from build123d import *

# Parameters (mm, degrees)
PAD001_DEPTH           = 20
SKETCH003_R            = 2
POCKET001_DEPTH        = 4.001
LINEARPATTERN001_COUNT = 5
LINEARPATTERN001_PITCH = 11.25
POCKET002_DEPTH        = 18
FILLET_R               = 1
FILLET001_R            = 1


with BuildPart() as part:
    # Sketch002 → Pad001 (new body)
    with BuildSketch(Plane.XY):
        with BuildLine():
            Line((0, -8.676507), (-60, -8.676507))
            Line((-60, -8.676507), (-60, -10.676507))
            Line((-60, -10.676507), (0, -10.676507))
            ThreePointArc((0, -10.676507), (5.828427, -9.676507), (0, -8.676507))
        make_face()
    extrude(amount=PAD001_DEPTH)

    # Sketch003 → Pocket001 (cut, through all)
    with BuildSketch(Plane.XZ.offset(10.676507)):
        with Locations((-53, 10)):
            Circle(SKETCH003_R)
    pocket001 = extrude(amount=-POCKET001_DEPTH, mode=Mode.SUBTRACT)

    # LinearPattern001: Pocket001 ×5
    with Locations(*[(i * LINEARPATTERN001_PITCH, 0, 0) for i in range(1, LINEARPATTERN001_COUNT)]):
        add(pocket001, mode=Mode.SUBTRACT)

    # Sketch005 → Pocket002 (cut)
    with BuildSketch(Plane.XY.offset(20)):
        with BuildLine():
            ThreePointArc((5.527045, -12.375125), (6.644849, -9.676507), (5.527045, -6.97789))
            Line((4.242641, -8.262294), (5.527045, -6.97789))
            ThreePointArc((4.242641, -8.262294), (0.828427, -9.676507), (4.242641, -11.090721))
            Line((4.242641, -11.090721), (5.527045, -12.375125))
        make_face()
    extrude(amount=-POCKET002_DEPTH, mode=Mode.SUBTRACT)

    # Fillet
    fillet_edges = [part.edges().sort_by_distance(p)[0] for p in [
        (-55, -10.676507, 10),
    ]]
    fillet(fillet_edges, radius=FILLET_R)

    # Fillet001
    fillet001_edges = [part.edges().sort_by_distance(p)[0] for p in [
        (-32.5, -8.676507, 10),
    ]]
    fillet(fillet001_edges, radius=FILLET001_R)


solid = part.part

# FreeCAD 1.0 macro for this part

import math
import FreeCAD as App
import Part
import Sketcher


def edges_at(feature, points):
    """Names of the edges that pass closest to the given points."""
    edges = feature.Shape.Edges
    near = lambda p: min(range(len(edges)), key=lambda i: edges[i].distToShape(Part.Vertex(*p))[0])
    return sorted({f"Edge{near(p) + 1}" for p in points})

doc = App.newDocument("Part")
body = doc.addObject("PartDesign::Body", "Body")

sketch1 = body.newObject("Sketcher::SketchObject", "Sketch")
sketch1.AttachmentSupport = (doc.getObject("XY_Plane"), [""])
sketch1.MapMode = "FlatFace"
sketch1.addGeometry([
    Part.LineSegment(App.Vector(0, -8.7, 0), App.Vector(-60, -8.7, 0)),
    Part.LineSegment(App.Vector(-60, -8.7, 0), App.Vector(-60, -10.7, 0)),
    Part.LineSegment(App.Vector(-60, -10.7, 0), App.Vector(0, -10.7, 0)),
    Part.ArcOfCircle(Part.Circle(App.Vector(2.8, -9.7, 0), App.Vector(0, 0, 1), 3), math.radians(-161), math.radians(161)),
], False)
sketch1.addConstraint([
    Sketcher.Constraint("Coincident", 0, 2, 1, 1),
    Sketcher.Constraint("Coincident", 1, 2, 2, 1),
    Sketcher.Constraint("Coincident", 2, 2, 3, 1),
    Sketcher.Constraint("Coincident", 3, 2, 0, 1),
    Sketcher.Constraint("Horizontal", 0),
    Sketcher.Constraint("Vertical", 1),
    Sketcher.Constraint("Horizontal", 2),
    Sketcher.Constraint("PointOnObject", 2, 2, -2),
    Sketcher.Constraint("PointOnObject", 3, 2, -2),
    Sketcher.Constraint("Radius", 3, 3.0),
    Sketcher.Constraint("DistanceX", 0, 2, 0, 1, 60.0),
    Sketcher.Constraint("DistanceY", 1, 2, 1, 1, 2.0),
    Sketcher.Constraint("DistanceY", 3, 3, -1, 1, 9.676507),
])
pad1 = body.newObject("PartDesign::Pad", "Pad")
pad1.Profile = sketch1
pad1.Length = 20

sketch2 = body.newObject("Sketcher::SketchObject", "Sketch001")
sketch2.AttachmentSupport = (doc.getObject("XZ_Plane"), [""])
sketch2.MapMode = "FlatFace"
sketch2.AttachmentOffset = App.Placement(App.Vector(0, 0, 10.676507), App.Rotation())
sketch2.addGeometry(Part.Circle(App.Vector(-53, 10, 0), App.Vector(0, 0, 1), 2), False)
sketch2.addConstraint([
    Sketcher.Constraint("Diameter", 0, 4.0),
    Sketcher.Constraint("DistanceX", 0, 3, -1, 1, 53.0),
    Sketcher.Constraint("DistanceY", -1, 1, 0, 3, 10.0),
])
pocket1 = body.newObject("PartDesign::Pocket", "Pocket")
pocket1.Profile = sketch2
pocket1.Type = "ThroughAll"
doc.recompute()

linearpattern = body.newObject("PartDesign::LinearPattern", "LinearPattern")
linearpattern.Originals = [pocket1]
linearpattern.Direction = (doc.getObject("X_Axis"), [""])
linearpattern.Mode = "offset"
linearpattern.Offset = 11.25
linearpattern.Occurrences = 5
body.Tip = linearpattern

sketch3 = body.newObject("Sketcher::SketchObject", "Sketch002")
sketch3.AttachmentSupport = (doc.getObject("XY_Plane"), [""])
sketch3.MapMode = "FlatFace"
sketch3.AttachmentOffset = App.Placement(App.Vector(0, 0, 20), App.Rotation())
sketch3.addGeometry([
    Part.ArcOfCircle(Part.Circle(App.Vector(2.8, -9.7, 0), App.Vector(0, 0, 1), 3.8), math.radians(-45), math.radians(45)),
    Part.LineSegment(App.Vector(5.5, -7, 0), App.Vector(4.2, -8.3, 0)),
    Part.ArcOfCircle(Part.Circle(App.Vector(2.8, -9.7, 0), App.Vector(0, 0, 1), 2), math.radians(45), math.radians(315)),
    Part.LineSegment(App.Vector(4.2, -11.1, 0), App.Vector(5.5, -12.4, 0)),
], False)
sketch3.addConstraint([
    Sketcher.Constraint("Coincident", 0, 2, 1, 1),
    Sketcher.Constraint("Coincident", 1, 2, 2, 1),
    Sketcher.Constraint("Coincident", 2, 2, 3, 1),
    Sketcher.Constraint("Coincident", 3, 2, 0, 1),
    Sketcher.Constraint("Coincident", 2, 3, 0, 3),
    Sketcher.Constraint("Perpendicular", 1, 3),
    Sketcher.Constraint("Vertical", 1, 2, 2, 2),
    Sketcher.Constraint("Vertical", 0, 2, 3, 2),
    Sketcher.Constraint("Radius", 2, 2.0),
    Sketcher.Constraint("Radius", 0, 3.816421),
    Sketcher.Constraint("DistanceY", 0, 2, -1, 1, 6.97789),
    Sketcher.Constraint("DistanceX", -1, 1, 1, 2, 4.242641),
    Sketcher.Constraint("DistanceY", 2, 2, -1, 1, 11.090721),
])
pocket2 = body.newObject("PartDesign::Pocket", "Pocket001")
pocket2.Profile = sketch3
pocket2.Length = 18
doc.recompute()

fillet = body.newObject("PartDesign::Fillet", "Fillet")
fillet.Base = (pocket2, edges_at(pocket2, [(-55, -10.677, 10)]))
fillet.Radius = 1
doc.recompute()

fillet2 = body.newObject("PartDesign::Fillet", "Fillet001")
fillet2.Base = (fillet, edges_at(fillet, [(-32.5, -8.677, 10)]))
fillet2.Radius = 1

doc.recompute()
